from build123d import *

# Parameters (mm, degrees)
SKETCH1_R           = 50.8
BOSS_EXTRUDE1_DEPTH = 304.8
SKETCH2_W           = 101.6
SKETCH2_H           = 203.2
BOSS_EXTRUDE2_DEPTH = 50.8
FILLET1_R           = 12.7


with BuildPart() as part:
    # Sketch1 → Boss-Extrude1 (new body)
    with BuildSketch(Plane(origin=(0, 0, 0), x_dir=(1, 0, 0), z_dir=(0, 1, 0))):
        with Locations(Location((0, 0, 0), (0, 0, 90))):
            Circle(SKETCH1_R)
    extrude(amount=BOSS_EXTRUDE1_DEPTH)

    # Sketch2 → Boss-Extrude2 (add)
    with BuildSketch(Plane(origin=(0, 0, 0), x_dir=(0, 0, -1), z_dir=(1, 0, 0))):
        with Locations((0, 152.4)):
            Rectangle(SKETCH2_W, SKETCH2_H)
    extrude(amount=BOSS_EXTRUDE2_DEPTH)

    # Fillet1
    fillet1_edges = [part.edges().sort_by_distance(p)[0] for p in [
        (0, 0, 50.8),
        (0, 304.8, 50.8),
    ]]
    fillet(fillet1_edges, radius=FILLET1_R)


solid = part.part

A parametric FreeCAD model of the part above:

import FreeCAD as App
import Part
import Sketcher

V = App.Vector
Q = App.Units.Quantity


def edges_at(feature, points):
    """Names of the edges that pass closest to the given points."""
    edges = feature.Shape.Edges
    near = lambda p: min(range(len(edges)), key=lambda i: edges[i].distToShape(Part.Vertex(*p))[0])
    return sorted({f"Edge{near(p) + 1}" for p in points})

doc = App.newDocument("Part")
params = doc.addObject("Spreadsheet::Sheet", "Params")
for row, (alias, value) in enumerate([
    ("sketch1_diameter", "4 in"),
    ("pad1_length", "12 in"),
    ("sketch2_width", "8 in"),
    ("sketch2_height", "4 in"),
    ("pad2_length", "2 in"),
    ("fillet_radius", "0.5 in"),
], start=1):
    params.set(f"A{row}", alias)
    params.set(f"B{row}", "=" + value)
    params.setAlias(f"B{row}", alias)

body = doc.addObject("PartDesign::Body", "Body")

# Sketch on XZ plane
sketch1 = body.newObject("Sketcher::SketchObject", "Sketch")
sketch1.AttachmentSupport = (doc.getObject("XZ_Plane"), [""])
sketch1.MapMode = "FlatFace"
sketch1.addGeometry(Part.Circle(V(0, 0, 0), V(0, 0, 1), 50.8), False)
sketch1.addConstraint(Sketcher.Constraint("Coincident", 0, 3, -1, 1))
sketch1.addConstraint(Sketcher.Constraint("Diameter", 0, Q("4 in")))
sketch1.setExpression("Constraints[1]", "Params.sketch1_diameter")
pad1 = body.newObject("PartDesign::Pad", "Pad")
pad1.Profile = sketch1
pad1.setExpression("Length", "Params.pad1_length")
pad1.Reversed = True

# Sketch on YZ plane
sketch2 = body.newObject("Sketcher::SketchObject", "Sketch001")
sketch2.AttachmentSupport = (doc.getObject("YZ_Plane"), [""])
sketch2.MapMode = "FlatFace"
sketch2.addGeometry(Part.LineSegment(V(254, 50.8, 0), V(50.8, 50.8, 0)), False)
sketch2.addGeometry(Part.LineSegment(V(50.8, 50.8, 0), V(50.8, -50.8, 0)), False)
sketch2.addGeometry(Part.LineSegment(V(50.8, -50.8, 0), V(254, -50.8, 0)), False)
sketch2.addGeometry(Part.LineSegment(V(254, -50.8, 0), V(254, 50.8, 0)), False)
sketch2.addConstraint(Sketcher.Constraint("Coincident", 0, 2, 1, 1))
sketch2.addConstraint(Sketcher.Constraint("Coincident", 1, 2, 2, 1))
sketch2.addConstraint(Sketcher.Constraint("Coincident", 2, 2, 3, 1))
sketch2.addConstraint(Sketcher.Constraint("Coincident", 3, 2, 0, 1))
sketch2.addConstraint(Sketcher.Constraint("Horizontal", 0))
sketch2.addConstraint(Sketcher.Constraint("Vertical", 1))
sketch2.addConstraint(Sketcher.Constraint("Horizontal", 2))
sketch2.addConstraint(Sketcher.Constraint("Vertical", 3))
sketch2.addConstraint(Sketcher.Constraint("DistanceX", 0, 2, 0, 1, Q("8 in")))
sketch2.addConstraint(Sketcher.Constraint("DistanceY", 1, 2, 1, 1, Q("4 in")))
sketch2.addConstraint(Sketcher.Constraint("DistanceX", -1, 1, 0, 2, Q("2 in")))
sketch2.addConstraint(Sketcher.Constraint("DistanceY", -1, 1, 0, 2, Q("2 in")))
sketch2.setExpression("Constraints[8]", "Params.sketch2_width")
sketch2.setExpression("Constraints[9]", "Params.sketch2_height")
pad2 = body.newObject("PartDesign::Pad", "Pad001")
pad2.Profile = sketch2
pad2.setExpression("Length", "Params.pad2_length")
doc.recompute()

fillet = body.newObject("PartDesign::Fillet", "Fillet")
fillet.Base = (pad2, edges_at(pad2, [(0, 0, 50.8), (0, 304.8, 50.8)]))
fillet.setExpression("Radius", "Params.fillet_radius")

doc.recompute()
